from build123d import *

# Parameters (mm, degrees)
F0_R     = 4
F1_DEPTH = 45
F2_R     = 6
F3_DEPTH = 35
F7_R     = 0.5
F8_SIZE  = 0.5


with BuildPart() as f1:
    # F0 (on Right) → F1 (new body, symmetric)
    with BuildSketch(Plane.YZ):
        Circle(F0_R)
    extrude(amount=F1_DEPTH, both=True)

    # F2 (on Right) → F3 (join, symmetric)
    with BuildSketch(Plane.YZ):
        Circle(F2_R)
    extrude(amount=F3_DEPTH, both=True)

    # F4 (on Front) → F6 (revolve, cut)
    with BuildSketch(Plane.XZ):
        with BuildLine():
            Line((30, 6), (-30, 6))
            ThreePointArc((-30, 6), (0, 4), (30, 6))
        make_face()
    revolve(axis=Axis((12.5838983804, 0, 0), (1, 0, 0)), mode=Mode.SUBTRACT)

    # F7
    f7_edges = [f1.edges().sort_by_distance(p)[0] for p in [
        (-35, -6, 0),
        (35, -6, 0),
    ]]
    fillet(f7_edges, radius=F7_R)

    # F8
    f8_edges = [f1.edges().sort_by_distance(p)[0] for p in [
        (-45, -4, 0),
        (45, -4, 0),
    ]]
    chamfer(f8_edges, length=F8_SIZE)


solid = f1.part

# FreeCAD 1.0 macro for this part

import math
import FreeCAD as App
import Part
import Sketcher

V = App.Vector
Q = App.Units.Quantity


def edges_at(feature, points):
    """Names of the edges that pass closest to the given points."""
    edges = feature.Shape.Edges
    near = lambda p: min(range(len(edges)), key=lambda i: edges[i].distToShape(Part.Vertex(*p))[0])
    return sorted({f"Edge{near(p) + 1}" for p in points})

doc = App.newDocument("Part")
body = doc.addObject("PartDesign::Body", "Body")

sketch1 = body.newObject("Sketcher::SketchObject", "Sketch")
sketch1.AttachmentSupport = (doc.getObject("YZ_Plane"), [""])
sketch1.MapMode = "FlatFace"
sketch1.addGeometry(Part.Circle(V(0, 0, 0), V(0, 0, 1), 4), False)
sketch1.addConstraint(Sketcher.Constraint("Coincident", 0, 3, -1, 1))
sketch1.addConstraint(Sketcher.Constraint("Diameter", 0, Q("8 mm")))
pad1 = body.newObject("PartDesign::Pad", "Pad")
pad1.Profile = sketch1
pad1.Length = 90
pad1.Midplane = True

sketch2 = body.newObject("Sketcher::SketchObject", "Sketch001")
sketch2.AttachmentSupport = (doc.getObject("YZ_Plane"), [""])
sketch2.MapMode = "FlatFace"
sketch2.addGeometry(Part.Circle(V(0, 0, 0), V(0, 0, 1), 6), False)
sketch2.addConstraint(Sketcher.Constraint("Coincident", 0, 3, -1, 1))
sketch2.addConstraint(Sketcher.Constraint("Diameter", 0, Q("12 mm")))
pad2 = body.newObject("PartDesign::Pad", "Pad001")
pad2.Profile = sketch2
pad2.Length = 70
pad2.Midplane = True

sketch3 = body.newObject("Sketcher::SketchObject", "Sketch002")
sketch3.AttachmentSupport = (doc.getObject("XZ_Plane"), [""])
sketch3.MapMode = "FlatFace"
sketch3.addGeometry(Part.LineSegment(V(30, 6, 0), V(-30, 6, 0)), False)
sketch3.addGeometry(Part.ArcOfCircle(Part.Circle(V(0, 230, 0), V(0, 0, 1), 226), math.radians(-97.62815), math.radians(-82.37185)), False)
sketch3.addConstraint(Sketcher.Constraint("Coincident", 0, 1, 1, 2))
sketch3.addConstraint(Sketcher.Constraint("Coincident", 1, 1, 0, 2))
sketch3.addConstraint(Sketcher.Constraint("Horizontal", 0))
sketch3.addConstraint(Sketcher.Constraint("PointOnObject", 1, 3, -2))
sketch3.addConstraint(Sketcher.Constraint("Radius", 1, Q("226 mm")))
sketch3.addConstraint(Sketcher.Constraint("DistanceX", 0, 2, 0, 1, Q("60 mm")))
sketch3.addConstraint(Sketcher.Constraint("DistanceY", -1, 1, 1, 3, Q("230 mm")))
groove = body.newObject("PartDesign::Groove", "Groove")
groove.Profile = sketch3
groove.ReferenceAxis = (sketch3, ["H_Axis"])
groove.Angle = 360
doc.recompute()

fillet = body.newObject("PartDesign::Fillet", "Fillet")
fillet.Base = (groove, edges_at(groove, [(-35, -6, 0), (35, -6, 0)]))
fillet.Radius = 0.5
doc.recompute()

chamfer = body.newObject("PartDesign::Chamfer", "Chamfer")
chamfer.Base = (fillet, edges_at(fillet, [(-45, -4, 0), (45, -4, 0)]))
chamfer.Size = 0.5

doc.recompute()
